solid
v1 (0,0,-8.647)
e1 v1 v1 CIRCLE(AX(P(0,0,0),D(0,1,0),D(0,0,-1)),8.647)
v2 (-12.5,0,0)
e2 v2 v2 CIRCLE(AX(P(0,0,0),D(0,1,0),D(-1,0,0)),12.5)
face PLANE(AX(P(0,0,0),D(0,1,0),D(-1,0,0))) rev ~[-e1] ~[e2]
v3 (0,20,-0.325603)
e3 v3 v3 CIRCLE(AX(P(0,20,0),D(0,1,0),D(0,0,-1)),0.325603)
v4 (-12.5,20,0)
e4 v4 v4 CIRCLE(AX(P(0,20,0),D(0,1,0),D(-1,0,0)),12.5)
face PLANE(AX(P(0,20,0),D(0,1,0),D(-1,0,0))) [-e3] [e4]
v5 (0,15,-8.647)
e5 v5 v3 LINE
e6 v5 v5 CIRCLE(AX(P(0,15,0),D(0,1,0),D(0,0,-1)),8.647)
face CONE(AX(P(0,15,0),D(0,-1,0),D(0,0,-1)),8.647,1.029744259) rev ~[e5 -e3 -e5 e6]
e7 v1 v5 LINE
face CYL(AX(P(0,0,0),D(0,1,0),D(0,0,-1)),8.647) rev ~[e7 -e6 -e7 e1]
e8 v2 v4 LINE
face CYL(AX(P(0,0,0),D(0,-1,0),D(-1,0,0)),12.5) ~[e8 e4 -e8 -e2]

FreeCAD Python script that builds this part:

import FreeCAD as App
import Part
import Sketcher
Q = App.Units.Quantity

doc = App.newDocument("Part")
body = doc.addObject("PartDesign::Body", "Body")

sketch1 = body.newObject("Sketcher::SketchObject", "Sketch")
sketch1.AttachmentSupport = (doc.getObject("XZ_Plane"), [""])
sketch1.MapMode = "FlatFace"
sketch1.addGeometry(Part.Circle(App.Vector(0, 0, 0), App.Vector(0, 0, 1), 12.5), False)
sketch1.addConstraint([
    Sketcher.Constraint("Coincident", 0, 3, -1, 1),
    Sketcher.Constraint("Diameter", 0, Q("25 mm")),
])
pad1 = body.newObject("PartDesign::Pad", "Pad")
pad1.Profile = sketch1
pad1.Length = 20
pad1.Reversed = True

sketch2 = body.newObject("Sketcher::SketchObject", "Sketch001")
sketch2.AttachmentSupport = (doc.getObject("XZ_Plane"), [""])
sketch2.MapMode = "FlatFace"
sketch2.addGeometry(Part.Circle(App.Vector(0, 0, 0), App.Vector(0, 0, 1), 8.647), False)
sketch2.addConstraint([
    Sketcher.Constraint("Coincident", 0, 3, -1, 1),
    Sketcher.Constraint("Diameter", 0, Q("17.294 mm")),
])
doc.recompute()
hole = body.newObject("PartDesign::Hole", "Hole")
hole.Profile = sketch2
hole.ThreadType = "None"
hole.Diameter = 17.294
hole.DepthType = "Dimension"
hole.Depth = 15
hole.DrillPoint = "Angled"
hole.DrillPointAngle = 118

doc.recompute()
